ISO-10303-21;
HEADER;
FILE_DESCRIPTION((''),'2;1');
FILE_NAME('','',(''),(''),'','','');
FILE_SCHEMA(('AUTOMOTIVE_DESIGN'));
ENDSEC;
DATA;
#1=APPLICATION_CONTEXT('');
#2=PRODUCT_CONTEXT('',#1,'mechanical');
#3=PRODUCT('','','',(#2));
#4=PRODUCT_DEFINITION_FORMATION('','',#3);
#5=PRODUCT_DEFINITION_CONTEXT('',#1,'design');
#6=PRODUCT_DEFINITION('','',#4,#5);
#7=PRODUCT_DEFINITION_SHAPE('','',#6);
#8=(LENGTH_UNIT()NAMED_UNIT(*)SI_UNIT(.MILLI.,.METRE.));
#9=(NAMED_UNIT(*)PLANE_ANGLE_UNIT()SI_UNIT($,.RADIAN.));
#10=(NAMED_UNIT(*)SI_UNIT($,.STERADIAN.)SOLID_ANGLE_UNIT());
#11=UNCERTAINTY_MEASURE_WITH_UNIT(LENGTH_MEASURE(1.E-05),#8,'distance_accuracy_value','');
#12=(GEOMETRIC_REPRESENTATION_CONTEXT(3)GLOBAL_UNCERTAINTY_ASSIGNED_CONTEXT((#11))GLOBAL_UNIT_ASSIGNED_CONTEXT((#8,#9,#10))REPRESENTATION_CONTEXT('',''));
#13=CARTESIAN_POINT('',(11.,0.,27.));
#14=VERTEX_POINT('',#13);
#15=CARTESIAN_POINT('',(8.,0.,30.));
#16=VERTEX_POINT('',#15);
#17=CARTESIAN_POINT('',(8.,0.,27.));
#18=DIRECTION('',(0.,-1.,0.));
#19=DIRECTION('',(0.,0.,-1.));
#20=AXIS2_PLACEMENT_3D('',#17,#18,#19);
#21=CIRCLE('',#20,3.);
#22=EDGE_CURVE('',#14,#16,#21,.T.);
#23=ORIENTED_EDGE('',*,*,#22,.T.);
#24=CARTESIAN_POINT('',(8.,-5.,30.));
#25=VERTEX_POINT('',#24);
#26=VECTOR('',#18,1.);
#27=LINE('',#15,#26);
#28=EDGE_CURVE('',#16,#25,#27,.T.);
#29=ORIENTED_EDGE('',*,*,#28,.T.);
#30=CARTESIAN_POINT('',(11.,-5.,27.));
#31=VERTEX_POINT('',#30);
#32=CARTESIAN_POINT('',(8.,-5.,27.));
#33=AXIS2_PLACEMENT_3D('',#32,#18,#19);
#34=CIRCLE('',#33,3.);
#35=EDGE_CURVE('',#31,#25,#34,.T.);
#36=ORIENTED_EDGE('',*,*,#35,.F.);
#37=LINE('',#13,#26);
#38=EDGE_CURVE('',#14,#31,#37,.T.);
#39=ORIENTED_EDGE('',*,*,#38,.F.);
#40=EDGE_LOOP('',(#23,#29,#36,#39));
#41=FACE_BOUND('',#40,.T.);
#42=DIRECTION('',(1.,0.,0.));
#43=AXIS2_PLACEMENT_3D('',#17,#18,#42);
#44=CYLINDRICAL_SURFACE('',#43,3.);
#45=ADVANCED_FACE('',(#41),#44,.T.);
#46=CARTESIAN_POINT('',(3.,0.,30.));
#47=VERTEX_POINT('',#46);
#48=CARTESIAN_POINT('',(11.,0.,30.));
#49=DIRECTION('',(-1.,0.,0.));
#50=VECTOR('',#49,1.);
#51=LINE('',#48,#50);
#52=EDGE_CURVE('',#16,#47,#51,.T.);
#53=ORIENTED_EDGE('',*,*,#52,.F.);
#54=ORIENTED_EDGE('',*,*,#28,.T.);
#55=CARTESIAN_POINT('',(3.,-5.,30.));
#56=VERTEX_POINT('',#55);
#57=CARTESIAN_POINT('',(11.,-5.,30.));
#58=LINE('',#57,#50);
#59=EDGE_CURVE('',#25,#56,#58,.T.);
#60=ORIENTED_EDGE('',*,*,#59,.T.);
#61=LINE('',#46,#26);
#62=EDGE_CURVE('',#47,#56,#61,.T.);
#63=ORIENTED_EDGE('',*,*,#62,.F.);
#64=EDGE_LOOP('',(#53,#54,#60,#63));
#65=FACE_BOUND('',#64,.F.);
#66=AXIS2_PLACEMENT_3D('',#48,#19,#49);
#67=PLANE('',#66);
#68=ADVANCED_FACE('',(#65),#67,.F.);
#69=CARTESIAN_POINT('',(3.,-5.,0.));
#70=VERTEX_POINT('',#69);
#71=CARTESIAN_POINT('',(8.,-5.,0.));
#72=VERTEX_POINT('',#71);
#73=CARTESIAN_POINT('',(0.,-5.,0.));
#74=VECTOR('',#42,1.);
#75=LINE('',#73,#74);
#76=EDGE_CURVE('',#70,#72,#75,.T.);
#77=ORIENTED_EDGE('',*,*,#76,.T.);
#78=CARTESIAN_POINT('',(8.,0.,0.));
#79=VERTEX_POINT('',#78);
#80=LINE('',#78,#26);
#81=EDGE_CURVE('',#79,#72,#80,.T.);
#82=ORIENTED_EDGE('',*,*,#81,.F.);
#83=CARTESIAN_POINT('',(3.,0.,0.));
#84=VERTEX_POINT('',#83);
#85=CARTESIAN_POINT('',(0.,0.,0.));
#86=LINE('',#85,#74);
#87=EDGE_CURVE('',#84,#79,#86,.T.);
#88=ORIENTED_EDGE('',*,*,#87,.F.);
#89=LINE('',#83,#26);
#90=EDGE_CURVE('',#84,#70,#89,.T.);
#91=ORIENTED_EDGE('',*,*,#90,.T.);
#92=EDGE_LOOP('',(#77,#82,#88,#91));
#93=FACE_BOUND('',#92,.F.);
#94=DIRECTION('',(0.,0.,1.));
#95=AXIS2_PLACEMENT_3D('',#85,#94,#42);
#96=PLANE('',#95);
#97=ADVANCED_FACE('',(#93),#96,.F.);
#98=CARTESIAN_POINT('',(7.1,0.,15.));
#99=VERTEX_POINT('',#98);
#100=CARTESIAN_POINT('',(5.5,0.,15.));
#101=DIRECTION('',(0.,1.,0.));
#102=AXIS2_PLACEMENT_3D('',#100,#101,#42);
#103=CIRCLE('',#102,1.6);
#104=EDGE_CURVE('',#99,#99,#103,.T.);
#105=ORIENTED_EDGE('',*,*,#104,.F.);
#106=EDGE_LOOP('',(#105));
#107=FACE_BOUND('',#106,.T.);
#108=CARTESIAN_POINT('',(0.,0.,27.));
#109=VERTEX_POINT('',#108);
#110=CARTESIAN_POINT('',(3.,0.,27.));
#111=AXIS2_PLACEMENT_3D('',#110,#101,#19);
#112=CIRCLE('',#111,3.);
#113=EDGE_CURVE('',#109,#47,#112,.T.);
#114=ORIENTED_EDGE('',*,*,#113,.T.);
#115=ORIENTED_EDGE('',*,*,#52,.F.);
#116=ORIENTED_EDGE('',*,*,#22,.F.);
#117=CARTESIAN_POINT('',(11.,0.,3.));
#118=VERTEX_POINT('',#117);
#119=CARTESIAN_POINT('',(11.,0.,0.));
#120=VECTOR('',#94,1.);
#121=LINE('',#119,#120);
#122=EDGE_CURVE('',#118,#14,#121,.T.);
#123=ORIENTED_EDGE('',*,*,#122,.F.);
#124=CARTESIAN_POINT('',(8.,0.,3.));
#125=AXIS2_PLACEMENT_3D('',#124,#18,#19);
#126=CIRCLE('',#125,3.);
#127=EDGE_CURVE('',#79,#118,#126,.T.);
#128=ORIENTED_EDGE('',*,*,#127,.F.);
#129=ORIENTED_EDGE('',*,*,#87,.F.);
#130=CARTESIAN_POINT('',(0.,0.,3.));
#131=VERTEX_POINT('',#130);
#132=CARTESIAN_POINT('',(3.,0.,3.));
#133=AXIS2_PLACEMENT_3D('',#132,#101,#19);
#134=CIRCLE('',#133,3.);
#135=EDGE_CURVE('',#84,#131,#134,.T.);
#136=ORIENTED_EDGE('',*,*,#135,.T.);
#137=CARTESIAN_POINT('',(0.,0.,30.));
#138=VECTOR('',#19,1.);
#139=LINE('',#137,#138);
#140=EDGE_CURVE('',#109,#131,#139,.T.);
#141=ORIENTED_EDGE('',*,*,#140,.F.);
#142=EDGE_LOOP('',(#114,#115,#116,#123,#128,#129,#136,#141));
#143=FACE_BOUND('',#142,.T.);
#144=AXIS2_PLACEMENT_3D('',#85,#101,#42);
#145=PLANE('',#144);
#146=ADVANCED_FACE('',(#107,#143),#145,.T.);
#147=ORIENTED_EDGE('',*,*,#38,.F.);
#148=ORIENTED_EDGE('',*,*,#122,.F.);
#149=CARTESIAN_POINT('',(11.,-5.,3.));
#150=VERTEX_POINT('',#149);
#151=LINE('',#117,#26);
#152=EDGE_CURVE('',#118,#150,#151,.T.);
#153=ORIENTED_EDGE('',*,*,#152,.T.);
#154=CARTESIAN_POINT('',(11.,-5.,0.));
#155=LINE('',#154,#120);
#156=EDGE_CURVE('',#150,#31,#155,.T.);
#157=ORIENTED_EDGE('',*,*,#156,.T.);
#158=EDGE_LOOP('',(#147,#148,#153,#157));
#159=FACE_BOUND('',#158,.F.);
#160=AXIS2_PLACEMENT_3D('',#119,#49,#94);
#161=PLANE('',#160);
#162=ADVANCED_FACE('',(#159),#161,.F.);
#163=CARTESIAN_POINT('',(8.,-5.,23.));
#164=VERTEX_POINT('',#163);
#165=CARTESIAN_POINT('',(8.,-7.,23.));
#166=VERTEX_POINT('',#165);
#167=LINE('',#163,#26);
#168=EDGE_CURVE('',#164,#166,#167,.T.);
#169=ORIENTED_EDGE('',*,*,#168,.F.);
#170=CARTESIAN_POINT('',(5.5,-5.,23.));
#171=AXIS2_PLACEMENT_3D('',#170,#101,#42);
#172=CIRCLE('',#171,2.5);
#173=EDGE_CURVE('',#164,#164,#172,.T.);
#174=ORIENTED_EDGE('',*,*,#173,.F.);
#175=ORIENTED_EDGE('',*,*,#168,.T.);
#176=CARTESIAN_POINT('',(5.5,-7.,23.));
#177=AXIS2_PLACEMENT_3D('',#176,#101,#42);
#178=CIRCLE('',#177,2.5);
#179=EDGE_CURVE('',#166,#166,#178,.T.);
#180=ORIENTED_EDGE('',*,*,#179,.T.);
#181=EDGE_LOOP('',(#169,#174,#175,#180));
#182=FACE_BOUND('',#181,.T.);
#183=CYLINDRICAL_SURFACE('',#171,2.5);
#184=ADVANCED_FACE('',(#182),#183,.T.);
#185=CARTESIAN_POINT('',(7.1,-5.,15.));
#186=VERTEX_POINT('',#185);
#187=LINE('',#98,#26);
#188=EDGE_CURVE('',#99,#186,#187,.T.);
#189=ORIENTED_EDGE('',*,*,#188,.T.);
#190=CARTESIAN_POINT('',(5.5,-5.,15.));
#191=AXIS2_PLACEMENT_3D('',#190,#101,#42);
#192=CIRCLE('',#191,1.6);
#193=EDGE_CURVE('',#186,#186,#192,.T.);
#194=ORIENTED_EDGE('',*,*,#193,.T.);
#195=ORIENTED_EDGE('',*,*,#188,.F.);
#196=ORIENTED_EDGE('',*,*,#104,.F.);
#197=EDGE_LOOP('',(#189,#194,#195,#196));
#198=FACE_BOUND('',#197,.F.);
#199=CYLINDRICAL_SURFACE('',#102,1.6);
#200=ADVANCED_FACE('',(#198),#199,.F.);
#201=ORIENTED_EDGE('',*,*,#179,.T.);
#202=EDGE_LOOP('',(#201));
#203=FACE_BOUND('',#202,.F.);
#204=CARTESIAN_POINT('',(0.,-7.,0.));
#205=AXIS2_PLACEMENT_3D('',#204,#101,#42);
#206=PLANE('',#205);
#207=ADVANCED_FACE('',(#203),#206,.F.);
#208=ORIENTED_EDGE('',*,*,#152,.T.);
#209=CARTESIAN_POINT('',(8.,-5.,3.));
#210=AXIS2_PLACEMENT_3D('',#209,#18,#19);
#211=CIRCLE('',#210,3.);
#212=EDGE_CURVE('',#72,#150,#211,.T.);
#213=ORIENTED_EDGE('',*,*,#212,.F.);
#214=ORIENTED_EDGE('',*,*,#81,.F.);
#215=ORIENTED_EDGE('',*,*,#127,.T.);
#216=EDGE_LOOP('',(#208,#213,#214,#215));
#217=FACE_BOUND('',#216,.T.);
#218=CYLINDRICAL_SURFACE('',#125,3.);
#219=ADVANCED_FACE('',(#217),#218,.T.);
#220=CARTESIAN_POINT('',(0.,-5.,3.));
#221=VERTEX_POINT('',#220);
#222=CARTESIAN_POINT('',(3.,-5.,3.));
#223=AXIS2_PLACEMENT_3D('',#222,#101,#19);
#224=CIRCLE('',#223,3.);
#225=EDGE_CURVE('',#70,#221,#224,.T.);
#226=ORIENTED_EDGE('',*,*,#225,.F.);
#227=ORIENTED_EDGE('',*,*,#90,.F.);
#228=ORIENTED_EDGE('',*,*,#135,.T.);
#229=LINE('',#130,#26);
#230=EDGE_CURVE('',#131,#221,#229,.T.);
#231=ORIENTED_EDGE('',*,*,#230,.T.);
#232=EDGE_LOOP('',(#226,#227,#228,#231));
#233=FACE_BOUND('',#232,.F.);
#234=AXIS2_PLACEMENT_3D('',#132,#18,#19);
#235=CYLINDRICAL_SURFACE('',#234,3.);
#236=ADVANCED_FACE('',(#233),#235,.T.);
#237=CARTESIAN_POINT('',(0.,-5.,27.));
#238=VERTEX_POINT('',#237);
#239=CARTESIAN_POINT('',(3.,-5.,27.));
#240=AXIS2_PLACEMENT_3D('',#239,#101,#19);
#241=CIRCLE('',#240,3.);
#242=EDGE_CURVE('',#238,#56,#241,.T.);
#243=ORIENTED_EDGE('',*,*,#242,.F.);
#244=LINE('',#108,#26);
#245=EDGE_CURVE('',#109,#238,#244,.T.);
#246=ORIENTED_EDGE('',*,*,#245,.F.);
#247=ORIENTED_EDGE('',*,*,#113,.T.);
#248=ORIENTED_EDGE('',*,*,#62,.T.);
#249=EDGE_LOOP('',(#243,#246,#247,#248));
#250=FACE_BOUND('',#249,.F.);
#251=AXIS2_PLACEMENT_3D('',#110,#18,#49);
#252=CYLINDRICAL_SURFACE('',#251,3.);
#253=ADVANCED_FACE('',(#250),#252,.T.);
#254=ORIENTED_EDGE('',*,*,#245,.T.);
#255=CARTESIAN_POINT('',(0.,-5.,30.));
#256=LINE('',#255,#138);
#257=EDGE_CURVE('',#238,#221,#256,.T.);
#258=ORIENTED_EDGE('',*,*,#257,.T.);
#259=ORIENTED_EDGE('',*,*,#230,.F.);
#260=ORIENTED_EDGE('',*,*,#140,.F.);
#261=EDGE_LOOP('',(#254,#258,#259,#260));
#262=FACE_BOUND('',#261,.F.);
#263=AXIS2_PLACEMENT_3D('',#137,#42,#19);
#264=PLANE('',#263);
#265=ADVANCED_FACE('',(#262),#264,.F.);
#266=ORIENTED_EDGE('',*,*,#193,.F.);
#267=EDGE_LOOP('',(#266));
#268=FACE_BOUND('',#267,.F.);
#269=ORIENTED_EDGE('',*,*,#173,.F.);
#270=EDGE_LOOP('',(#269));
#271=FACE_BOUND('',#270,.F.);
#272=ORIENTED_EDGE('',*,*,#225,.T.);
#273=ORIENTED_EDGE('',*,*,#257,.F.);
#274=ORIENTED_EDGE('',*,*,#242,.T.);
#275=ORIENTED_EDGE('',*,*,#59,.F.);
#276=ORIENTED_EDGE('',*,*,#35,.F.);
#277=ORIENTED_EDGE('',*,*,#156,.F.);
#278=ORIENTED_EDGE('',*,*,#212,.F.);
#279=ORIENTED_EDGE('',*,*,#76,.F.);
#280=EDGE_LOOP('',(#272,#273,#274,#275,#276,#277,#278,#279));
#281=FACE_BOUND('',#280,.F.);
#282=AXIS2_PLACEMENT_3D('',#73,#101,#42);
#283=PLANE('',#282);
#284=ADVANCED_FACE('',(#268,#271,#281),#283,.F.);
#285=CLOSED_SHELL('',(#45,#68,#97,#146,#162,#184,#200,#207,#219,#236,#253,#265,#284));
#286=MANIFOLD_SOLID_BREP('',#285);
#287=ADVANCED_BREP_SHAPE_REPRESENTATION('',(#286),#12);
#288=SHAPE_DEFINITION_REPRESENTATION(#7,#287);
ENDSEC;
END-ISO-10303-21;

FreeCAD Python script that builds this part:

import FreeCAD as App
import Part
import Sketcher


def edges_at(feature, points):
    """Names of the edges that pass closest to the given points."""
    edges = feature.Shape.Edges
    near = lambda p: min(range(len(edges)), key=lambda i: edges[i].distToShape(Part.Vertex(*p))[0])
    return sorted({f"Edge{near(p) + 1}" for p in points})

doc = App.newDocument("Part")
body = doc.addObject("PartDesign::Body", "Body")

# Sketch on XZ plane
sketch1 = body.newObject("Sketcher::SketchObject", "Sketch")
sketch1.AttachmentSupport = (doc.getObject("XZ_Plane"), [""])
sketch1.MapMode = "FlatFace"
sketch1.addGeometry([
    Part.LineSegment(App.Vector(11, 0, 0), App.Vector(0, 0, 0)),  # 0
    Part.LineSegment(App.Vector(0, 0, 0), App.Vector(0, 30, 0)),  # 1
    Part.LineSegment(App.Vector(0, 30, 0), App.Vector(11, 30, 0)),  # 2
    Part.LineSegment(App.Vector(11, 30, 0), App.Vector(11, 0, 0)),  # 3
    Part.Circle(App.Vector(5.5, 15, 0), App.Vector(0, 0, 1), 1.6),  # 4
], False)
sketch1.addConstraint([
    Sketcher.Constraint("Coincident", 0, 2, 1, 1),
    Sketcher.Constraint("Coincident", 1, 2, 2, 1),
    Sketcher.Constraint("Coincident", 2, 2, 3, 1),
    Sketcher.Constraint("Coincident", 3, 2, 0, 1),
    Sketcher.Constraint("Horizontal", 0),
    Sketcher.Constraint("Vertical", 1),
    Sketcher.Constraint("Horizontal", 2),
    Sketcher.Constraint("Vertical", 3),
    Sketcher.Constraint("Coincident", 0, 2, -1, 1),
    Sketcher.Constraint("Diameter", 4, 3.2),
    Sketcher.Constraint("DistanceX", 0, 2, 0, 1, 11.0),
    Sketcher.Constraint("DistanceY", 1, 1, 1, 2, 30.0),
    Sketcher.Constraint("DistanceY", -1, 1, 4, 3, 15.0),
    Sketcher.Constraint("DistanceX", -1, 1, 4, 3, 5.5),
])
pad1 = body.newObject("PartDesign::Pad", "Pad")
pad1.Profile = sketch1
pad1.Length = 5

# Sketch on XZ plane
sketch2 = body.newObject("Sketcher::SketchObject", "Sketch001")
sketch2.AttachmentSupport = (doc.getObject("XZ_Plane"), [""])
sketch2.MapMode = "FlatFace"
sketch2.AttachmentOffset = App.Placement(App.Vector(0, 0, 5), App.Rotation())
sketch2.addGeometry(Part.Circle(App.Vector(5.5, 23, 0), App.Vector(0, 0, 1), 2.5), False)
sketch2.addConstraint([
    Sketcher.Constraint("Diameter", 0, 5.0),
    Sketcher.Constraint("DistanceX", -1, 1, 0, 3, 5.5),
    Sketcher.Constraint("DistanceY", -1, 1, 0, 3, 23.0),
])
pad2 = body.newObject("PartDesign::Pad", "Pad001")
pad2.Profile = sketch2
pad2.Length = 2
doc.recompute()

fillet = body.newObject("PartDesign::Fillet", "Fillet")
fillet.Base = (pad2, edges_at(pad2, [
    (11, -2.5, 30),
    (0, -2.5, 30),
    (0, -2.5, 0),
    (11, -2.5, 0),
]))
fillet.Radius = 3

doc.recompute()
